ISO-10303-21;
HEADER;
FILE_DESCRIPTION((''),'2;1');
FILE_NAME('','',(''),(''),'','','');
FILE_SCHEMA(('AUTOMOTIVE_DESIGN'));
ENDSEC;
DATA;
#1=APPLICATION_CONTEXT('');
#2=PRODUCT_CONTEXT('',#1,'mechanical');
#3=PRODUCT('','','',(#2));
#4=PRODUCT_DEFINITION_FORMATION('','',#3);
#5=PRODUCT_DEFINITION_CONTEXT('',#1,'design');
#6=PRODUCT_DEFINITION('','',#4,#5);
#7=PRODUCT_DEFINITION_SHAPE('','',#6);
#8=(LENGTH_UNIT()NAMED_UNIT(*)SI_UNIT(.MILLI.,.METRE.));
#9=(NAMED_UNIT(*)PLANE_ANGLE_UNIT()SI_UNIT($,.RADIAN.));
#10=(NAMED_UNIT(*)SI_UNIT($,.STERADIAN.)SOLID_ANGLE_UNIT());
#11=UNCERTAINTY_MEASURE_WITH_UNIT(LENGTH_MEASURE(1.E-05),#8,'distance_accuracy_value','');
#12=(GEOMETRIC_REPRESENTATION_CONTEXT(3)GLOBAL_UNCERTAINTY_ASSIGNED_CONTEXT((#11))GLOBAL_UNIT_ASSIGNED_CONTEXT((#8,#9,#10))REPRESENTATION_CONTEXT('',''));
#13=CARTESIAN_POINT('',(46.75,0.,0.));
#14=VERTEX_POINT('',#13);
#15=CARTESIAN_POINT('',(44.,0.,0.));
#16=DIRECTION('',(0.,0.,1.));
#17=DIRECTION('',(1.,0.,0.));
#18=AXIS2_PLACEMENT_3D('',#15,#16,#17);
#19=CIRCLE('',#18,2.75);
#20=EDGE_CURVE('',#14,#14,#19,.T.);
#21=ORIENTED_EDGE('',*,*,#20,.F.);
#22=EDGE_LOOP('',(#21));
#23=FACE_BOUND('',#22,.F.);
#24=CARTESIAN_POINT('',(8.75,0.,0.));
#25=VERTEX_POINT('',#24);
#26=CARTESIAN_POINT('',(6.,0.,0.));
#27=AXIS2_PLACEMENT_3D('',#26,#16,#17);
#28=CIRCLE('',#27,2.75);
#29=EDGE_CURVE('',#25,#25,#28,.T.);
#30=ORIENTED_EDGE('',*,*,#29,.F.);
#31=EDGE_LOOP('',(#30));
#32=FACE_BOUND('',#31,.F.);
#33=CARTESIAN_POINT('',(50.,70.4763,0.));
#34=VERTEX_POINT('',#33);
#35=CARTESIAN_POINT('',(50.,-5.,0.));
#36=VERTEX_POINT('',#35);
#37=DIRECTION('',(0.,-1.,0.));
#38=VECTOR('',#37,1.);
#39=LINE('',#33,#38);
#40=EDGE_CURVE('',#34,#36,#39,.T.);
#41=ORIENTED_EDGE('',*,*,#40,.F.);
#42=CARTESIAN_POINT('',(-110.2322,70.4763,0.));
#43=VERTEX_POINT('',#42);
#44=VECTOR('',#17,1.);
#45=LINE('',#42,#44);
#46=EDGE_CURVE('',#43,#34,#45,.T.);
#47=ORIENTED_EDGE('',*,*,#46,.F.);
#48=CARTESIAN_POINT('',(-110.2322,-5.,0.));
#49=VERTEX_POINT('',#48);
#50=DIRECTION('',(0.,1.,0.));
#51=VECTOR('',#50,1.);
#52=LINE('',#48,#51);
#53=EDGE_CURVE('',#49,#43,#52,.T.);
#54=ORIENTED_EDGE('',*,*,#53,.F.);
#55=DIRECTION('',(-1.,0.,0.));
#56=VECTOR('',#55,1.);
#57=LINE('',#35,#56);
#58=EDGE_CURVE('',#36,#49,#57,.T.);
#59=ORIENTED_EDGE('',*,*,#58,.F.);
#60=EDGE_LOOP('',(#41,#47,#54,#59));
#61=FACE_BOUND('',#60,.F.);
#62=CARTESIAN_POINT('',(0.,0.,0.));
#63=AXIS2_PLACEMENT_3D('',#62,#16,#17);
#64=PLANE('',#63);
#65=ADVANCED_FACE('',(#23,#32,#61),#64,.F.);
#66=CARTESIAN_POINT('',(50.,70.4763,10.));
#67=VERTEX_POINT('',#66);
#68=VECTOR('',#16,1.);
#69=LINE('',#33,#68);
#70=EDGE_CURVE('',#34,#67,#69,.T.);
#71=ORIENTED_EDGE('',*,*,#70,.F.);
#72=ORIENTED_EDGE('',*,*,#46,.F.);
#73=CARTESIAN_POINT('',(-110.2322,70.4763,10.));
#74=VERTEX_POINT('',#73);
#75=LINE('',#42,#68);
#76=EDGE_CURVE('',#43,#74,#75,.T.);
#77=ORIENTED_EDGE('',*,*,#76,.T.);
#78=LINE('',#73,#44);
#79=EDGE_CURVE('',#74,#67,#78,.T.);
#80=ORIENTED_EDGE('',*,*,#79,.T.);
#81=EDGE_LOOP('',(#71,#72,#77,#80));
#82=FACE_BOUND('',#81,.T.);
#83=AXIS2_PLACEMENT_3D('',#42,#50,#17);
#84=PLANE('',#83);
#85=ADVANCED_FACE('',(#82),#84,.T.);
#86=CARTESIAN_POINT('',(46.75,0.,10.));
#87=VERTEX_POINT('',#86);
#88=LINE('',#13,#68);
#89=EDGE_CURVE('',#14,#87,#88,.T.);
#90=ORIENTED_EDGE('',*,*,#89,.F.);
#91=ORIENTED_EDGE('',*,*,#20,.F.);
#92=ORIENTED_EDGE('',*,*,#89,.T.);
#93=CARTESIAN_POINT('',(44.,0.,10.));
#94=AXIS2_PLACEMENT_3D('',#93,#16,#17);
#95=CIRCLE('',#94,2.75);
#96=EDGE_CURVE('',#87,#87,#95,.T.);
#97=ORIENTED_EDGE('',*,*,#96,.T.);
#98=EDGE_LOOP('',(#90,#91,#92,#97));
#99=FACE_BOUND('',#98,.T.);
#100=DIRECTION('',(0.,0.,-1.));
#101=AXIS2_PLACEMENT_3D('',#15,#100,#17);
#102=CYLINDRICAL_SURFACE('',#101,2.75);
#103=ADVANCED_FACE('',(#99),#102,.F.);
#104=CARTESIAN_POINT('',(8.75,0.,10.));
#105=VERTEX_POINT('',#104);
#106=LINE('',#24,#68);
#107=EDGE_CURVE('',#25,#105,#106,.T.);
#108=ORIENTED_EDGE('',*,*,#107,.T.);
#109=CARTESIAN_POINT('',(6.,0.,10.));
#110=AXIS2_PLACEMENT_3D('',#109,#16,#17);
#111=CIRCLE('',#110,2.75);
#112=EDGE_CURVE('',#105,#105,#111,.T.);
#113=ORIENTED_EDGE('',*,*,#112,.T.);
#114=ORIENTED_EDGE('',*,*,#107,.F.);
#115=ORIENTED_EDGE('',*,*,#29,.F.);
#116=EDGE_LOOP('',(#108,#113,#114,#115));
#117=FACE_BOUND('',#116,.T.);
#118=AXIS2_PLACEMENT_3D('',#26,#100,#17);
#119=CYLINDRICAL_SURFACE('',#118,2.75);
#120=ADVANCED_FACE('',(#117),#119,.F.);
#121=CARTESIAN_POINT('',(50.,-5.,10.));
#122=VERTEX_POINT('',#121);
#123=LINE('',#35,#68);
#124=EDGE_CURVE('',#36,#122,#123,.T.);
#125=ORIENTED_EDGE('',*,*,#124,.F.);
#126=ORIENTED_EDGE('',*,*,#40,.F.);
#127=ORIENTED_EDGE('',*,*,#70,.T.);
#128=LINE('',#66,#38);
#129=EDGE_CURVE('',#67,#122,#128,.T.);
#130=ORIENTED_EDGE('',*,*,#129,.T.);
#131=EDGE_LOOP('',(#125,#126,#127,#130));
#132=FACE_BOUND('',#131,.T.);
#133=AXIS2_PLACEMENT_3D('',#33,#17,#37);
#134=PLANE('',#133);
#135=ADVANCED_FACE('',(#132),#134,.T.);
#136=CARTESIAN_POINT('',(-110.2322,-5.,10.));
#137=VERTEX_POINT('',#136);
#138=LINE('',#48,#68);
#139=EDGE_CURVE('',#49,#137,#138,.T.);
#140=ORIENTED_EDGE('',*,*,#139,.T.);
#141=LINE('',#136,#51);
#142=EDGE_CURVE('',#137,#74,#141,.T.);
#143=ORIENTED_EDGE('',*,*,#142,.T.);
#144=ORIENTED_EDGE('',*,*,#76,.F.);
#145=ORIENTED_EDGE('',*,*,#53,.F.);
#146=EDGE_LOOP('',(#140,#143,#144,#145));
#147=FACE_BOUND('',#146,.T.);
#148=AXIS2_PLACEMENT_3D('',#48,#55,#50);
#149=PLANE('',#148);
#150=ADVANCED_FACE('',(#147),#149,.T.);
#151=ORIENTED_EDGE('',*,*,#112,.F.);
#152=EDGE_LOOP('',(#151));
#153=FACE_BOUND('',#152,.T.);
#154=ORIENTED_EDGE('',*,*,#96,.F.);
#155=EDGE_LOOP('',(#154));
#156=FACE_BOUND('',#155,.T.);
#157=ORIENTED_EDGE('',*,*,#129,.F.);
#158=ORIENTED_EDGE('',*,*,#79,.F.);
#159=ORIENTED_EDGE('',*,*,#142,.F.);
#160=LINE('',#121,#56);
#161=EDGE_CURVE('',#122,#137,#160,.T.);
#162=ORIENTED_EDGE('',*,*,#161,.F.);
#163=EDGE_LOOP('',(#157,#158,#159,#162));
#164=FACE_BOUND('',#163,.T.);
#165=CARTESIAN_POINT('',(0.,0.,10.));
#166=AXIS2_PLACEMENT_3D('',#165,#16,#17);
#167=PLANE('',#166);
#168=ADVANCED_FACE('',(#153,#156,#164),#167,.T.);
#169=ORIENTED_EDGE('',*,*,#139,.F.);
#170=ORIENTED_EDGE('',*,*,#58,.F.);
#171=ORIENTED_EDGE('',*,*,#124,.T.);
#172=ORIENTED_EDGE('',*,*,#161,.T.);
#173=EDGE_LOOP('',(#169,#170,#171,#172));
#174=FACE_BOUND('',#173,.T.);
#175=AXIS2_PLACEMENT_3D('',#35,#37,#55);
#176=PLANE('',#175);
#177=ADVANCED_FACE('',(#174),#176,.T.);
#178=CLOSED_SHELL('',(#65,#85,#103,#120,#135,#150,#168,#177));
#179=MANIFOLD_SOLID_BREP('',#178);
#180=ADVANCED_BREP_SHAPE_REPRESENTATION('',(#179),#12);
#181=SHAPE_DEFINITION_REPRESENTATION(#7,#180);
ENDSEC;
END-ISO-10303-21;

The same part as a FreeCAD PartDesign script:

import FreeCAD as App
import Part
import Sketcher
Q = App.Units.Quantity

doc = App.newDocument("Part")
params = doc.addObject("Spreadsheet::Sheet", "Params")
for row, (alias, value) in enumerate([
    ("sketch1_diameter", "5.5 mm"),
    ("pad1_length", "10 mm"),
], start=1):
    params.set(f"A{row}", alias)
    params.set(f"B{row}", "=" + value)
    params.setAlias(f"B{row}", alias)

body = doc.addObject("PartDesign::Body", "Body")

# Sketch on XY plane
sketch1 = body.newObject("Sketcher::SketchObject", "Sketch")
sketch1.AttachmentSupport = (doc.getObject("XY_Plane"), [""])
sketch1.MapMode = "FlatFace"
sketch1.addGeometry([
    Part.LineSegment(App.Vector(-110.2, -5, 0), App.Vector(50, -5, 0)),  # 0
    Part.LineSegment(App.Vector(50, -5, 0), App.Vector(50, 70.5, 0)),  # 1
    Part.LineSegment(App.Vector(50, 70.5, 0), App.Vector(-110.2, 70.5, 0)),  # 2
    Part.LineSegment(App.Vector(-110.2, 70.5, 0), App.Vector(-110.2, -5, 0)),  # 3
    Part.Circle(App.Vector(6, 0, 0), App.Vector(0, 0, 1), 2.8),  # 4
    Part.Circle(App.Vector(44, 0, 0), App.Vector(0, 0, 1), 2.8),  # 5
], False)
sketch1.addConstraint([
    Sketcher.Constraint("Coincident", 0, 2, 1, 1),
    Sketcher.Constraint("Coincident", 1, 2, 2, 1),
    Sketcher.Constraint("Coincident", 2, 2, 3, 1),
    Sketcher.Constraint("Coincident", 3, 2, 0, 1),
    Sketcher.Constraint("Horizontal", 0),
    Sketcher.Constraint("Vertical", 1),
    Sketcher.Constraint("Horizontal", 2),
    Sketcher.Constraint("Vertical", 3),
    Sketcher.Constraint("Equal", 4, 5),
    Sketcher.Constraint("PointOnObject", 4, 3, -1),
    Sketcher.Constraint("PointOnObject", 5, 3, -1),
    Sketcher.Constraint("Diameter", 4, Q("5.5 mm")),
    Sketcher.Constraint("DistanceX", -1, 1, 4, 3, Q("6 mm")),
    Sketcher.Constraint("DistanceX", -1, 1, 5, 3, Q("44 mm")),
    Sketcher.Constraint("DistanceX", -1, 1, 0, 2, Q("50 mm")),
    Sketcher.Constraint("DistanceY", 0, 2, -1, 1, Q("5 mm")),
    Sketcher.Constraint("DistanceX", 0, 1, 0, 2, Q("160.2322 mm")),
    Sketcher.Constraint("DistanceY", 1, 1, 1, 2, Q("75.4763 mm")),
])
sketch1.setExpression("Constraints[11]", "Params.sketch1_diameter")
pad1 = body.newObject("PartDesign::Pad", "Pad")
pad1.Profile = sketch1
pad1.setExpression("Length", "Params.pad1_length")

doc.recompute()
